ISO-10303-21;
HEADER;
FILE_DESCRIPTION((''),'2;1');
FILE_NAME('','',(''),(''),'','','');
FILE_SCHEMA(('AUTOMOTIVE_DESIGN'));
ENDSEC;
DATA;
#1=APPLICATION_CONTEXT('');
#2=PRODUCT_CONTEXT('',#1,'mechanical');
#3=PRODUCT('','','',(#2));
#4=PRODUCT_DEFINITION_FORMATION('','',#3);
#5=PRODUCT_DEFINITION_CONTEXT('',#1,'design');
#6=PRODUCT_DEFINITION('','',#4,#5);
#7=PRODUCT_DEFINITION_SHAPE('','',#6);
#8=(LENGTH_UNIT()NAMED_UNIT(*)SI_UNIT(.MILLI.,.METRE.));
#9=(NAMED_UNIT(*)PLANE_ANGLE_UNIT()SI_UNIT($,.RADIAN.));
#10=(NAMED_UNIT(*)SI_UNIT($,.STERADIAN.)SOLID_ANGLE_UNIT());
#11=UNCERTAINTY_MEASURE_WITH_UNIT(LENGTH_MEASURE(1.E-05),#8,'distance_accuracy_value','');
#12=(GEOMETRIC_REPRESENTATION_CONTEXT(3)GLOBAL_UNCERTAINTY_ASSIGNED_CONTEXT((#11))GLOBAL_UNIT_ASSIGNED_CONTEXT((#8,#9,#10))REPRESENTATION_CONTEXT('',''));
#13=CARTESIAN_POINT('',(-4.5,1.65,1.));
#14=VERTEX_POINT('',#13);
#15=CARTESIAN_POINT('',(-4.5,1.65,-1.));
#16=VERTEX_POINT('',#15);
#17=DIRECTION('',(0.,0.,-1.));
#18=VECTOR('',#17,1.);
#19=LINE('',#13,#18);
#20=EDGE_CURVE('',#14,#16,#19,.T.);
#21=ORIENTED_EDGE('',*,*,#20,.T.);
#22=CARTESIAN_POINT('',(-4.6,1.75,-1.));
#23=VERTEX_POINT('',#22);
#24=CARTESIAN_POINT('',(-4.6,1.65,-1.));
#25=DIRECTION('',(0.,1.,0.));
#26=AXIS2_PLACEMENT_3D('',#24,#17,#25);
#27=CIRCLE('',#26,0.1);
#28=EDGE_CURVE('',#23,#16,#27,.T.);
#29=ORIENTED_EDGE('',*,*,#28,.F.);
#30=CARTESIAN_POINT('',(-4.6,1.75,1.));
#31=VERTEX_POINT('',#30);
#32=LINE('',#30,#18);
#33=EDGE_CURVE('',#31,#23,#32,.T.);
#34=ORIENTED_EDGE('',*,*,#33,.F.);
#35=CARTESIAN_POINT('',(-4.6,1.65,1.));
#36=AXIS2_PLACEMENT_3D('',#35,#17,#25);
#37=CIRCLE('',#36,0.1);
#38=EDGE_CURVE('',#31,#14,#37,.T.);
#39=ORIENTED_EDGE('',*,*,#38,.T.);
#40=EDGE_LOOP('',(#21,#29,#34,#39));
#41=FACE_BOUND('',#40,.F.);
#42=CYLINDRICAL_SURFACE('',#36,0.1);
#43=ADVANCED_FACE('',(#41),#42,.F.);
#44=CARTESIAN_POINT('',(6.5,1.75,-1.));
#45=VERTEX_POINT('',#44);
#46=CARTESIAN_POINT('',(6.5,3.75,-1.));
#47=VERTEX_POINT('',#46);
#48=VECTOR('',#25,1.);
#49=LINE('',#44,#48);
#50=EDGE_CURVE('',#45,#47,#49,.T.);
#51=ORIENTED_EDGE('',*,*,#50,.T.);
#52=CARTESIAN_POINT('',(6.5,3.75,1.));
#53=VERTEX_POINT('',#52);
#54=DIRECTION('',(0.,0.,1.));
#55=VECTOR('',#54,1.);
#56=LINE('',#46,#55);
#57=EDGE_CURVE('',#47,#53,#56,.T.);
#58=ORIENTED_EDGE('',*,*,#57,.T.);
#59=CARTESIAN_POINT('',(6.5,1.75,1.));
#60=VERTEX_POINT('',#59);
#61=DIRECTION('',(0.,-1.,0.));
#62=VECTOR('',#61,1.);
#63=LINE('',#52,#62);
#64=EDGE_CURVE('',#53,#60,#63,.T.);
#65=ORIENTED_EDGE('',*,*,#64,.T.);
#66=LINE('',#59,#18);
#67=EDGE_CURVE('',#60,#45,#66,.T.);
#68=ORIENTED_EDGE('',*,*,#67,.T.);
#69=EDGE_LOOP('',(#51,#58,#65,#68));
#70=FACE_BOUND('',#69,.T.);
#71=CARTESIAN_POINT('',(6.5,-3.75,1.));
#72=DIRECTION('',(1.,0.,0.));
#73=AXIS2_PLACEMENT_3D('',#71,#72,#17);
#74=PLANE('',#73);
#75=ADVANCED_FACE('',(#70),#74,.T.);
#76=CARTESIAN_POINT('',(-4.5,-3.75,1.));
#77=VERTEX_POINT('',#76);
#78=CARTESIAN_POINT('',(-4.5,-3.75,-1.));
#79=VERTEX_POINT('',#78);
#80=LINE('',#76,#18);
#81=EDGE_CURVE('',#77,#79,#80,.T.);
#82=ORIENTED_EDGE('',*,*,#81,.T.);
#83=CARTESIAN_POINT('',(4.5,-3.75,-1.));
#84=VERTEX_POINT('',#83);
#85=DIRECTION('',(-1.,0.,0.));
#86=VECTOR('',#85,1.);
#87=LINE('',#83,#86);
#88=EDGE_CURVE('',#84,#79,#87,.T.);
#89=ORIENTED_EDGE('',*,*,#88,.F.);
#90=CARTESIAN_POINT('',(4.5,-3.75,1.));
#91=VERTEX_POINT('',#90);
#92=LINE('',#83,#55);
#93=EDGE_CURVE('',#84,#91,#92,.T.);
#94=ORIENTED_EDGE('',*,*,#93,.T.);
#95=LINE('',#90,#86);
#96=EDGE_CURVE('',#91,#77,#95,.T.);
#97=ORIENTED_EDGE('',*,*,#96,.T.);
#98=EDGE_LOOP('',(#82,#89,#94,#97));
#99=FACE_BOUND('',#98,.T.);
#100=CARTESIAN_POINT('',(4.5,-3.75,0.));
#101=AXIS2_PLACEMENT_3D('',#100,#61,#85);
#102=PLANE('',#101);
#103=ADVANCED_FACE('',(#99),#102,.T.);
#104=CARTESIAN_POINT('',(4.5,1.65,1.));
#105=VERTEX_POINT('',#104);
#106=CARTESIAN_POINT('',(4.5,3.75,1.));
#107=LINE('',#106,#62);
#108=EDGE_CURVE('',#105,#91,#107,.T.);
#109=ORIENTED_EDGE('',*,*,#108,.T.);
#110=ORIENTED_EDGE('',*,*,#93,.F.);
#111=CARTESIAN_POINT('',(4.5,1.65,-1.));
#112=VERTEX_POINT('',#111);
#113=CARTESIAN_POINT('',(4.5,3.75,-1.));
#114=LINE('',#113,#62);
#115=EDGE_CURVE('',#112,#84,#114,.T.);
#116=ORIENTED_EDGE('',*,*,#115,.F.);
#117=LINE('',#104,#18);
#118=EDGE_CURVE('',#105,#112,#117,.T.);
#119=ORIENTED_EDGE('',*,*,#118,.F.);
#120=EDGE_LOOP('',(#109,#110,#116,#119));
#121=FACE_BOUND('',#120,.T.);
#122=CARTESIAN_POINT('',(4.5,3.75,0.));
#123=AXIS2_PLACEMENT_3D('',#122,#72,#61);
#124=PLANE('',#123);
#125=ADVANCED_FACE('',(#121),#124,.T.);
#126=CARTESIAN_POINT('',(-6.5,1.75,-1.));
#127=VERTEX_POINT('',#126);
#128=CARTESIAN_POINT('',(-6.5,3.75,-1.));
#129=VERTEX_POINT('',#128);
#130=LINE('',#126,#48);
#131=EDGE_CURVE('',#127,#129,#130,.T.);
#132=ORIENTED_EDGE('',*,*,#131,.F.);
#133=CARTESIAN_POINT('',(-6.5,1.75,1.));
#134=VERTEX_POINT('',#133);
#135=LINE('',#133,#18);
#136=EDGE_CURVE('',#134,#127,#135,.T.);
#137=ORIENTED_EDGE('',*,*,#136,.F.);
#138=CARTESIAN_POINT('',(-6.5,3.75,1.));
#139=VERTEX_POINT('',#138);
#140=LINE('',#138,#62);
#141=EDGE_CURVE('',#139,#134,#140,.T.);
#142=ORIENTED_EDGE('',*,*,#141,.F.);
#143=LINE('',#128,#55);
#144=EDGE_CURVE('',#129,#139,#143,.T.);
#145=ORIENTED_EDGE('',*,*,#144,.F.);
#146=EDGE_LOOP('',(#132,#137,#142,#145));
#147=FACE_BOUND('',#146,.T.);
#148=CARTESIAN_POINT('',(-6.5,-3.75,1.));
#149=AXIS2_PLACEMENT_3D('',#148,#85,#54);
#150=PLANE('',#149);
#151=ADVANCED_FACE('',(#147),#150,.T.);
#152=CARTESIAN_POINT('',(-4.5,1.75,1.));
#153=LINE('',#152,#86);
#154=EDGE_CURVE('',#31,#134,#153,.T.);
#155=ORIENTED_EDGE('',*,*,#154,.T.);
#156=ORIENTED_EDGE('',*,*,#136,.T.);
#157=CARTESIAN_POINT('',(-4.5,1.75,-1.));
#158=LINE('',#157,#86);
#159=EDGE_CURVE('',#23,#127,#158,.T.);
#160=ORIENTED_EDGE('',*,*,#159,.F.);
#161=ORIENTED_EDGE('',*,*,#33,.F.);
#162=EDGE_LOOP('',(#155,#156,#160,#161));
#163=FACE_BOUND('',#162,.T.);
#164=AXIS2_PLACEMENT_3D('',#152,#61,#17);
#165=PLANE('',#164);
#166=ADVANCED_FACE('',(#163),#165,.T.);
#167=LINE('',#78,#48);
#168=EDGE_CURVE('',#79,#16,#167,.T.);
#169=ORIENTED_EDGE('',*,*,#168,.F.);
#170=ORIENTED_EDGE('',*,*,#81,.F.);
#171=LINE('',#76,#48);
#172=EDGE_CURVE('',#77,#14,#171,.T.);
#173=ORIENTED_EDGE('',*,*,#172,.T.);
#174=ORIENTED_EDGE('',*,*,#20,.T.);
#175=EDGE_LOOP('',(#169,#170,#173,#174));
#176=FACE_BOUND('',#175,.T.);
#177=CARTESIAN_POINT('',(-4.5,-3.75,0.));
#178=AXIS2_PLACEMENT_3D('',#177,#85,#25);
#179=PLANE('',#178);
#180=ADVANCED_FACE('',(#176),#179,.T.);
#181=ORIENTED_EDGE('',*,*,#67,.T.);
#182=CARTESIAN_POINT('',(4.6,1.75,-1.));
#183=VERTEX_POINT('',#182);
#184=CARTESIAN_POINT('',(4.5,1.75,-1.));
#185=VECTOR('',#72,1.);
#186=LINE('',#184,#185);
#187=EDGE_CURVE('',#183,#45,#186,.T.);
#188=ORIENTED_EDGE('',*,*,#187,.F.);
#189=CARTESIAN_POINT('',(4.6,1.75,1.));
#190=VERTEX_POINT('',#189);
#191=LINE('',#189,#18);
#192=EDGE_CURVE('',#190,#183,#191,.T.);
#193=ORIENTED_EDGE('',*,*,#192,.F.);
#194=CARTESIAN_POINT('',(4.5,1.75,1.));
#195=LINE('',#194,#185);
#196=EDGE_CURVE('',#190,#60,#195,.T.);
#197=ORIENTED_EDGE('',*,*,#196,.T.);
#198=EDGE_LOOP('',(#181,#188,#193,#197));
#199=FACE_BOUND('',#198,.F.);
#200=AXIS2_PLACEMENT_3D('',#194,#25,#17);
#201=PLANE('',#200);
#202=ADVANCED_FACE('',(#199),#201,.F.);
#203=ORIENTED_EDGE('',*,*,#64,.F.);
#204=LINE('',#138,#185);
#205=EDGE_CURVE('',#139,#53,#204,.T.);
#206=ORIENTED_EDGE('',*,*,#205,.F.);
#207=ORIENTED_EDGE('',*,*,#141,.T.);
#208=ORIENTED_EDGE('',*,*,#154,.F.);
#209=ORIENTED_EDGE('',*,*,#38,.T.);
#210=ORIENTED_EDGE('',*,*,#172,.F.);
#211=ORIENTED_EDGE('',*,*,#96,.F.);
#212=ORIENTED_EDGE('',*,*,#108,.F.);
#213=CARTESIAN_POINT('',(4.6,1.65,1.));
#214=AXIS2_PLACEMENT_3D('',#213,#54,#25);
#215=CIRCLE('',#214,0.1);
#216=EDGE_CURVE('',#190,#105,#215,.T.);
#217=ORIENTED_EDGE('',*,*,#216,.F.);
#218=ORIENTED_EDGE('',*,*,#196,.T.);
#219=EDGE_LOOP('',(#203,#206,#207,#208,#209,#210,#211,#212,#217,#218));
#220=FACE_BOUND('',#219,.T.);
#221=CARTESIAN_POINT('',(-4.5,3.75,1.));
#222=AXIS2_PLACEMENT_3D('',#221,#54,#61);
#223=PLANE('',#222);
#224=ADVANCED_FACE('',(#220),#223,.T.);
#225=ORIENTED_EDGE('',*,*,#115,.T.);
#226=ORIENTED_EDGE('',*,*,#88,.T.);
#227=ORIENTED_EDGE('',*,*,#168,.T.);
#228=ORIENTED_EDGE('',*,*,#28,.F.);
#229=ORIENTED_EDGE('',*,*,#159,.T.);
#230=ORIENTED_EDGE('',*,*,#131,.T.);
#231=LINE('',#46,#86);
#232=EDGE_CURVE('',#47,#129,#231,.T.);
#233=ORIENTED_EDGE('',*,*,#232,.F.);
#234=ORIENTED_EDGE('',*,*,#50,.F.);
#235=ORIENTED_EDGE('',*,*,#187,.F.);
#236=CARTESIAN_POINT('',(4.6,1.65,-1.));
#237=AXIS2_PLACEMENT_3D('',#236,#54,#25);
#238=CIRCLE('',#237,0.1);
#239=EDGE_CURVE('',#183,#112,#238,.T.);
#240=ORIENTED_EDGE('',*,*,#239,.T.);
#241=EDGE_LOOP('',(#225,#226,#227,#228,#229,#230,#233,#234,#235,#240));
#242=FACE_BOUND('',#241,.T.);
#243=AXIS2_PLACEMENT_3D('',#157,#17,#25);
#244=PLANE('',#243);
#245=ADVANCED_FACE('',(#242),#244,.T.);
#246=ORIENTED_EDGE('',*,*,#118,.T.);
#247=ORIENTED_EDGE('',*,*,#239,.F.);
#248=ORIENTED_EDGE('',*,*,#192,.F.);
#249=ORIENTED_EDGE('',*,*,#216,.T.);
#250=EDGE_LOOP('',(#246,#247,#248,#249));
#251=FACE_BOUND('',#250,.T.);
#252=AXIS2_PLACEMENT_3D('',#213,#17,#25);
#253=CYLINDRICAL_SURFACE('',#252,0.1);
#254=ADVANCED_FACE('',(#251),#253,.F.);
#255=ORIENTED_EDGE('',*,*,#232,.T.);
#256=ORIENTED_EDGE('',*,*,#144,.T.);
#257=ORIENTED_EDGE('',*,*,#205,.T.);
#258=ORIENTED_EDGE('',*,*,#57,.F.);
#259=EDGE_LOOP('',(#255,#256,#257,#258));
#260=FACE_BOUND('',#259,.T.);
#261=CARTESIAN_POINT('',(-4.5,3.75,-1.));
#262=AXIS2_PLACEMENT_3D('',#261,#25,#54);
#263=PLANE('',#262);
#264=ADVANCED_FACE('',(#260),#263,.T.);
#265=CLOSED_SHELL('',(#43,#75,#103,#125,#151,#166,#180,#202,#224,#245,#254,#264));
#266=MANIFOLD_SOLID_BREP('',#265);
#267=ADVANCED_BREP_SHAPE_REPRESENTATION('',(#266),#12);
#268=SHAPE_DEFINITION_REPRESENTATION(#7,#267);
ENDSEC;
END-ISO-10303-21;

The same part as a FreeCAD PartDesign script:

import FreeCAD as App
import Part
import Sketcher

V = App.Vector


def edges_at(feature, points):
    """Names of the edges that pass closest to the given points."""
    edges = feature.Shape.Edges
    near = lambda p: min(range(len(edges)), key=lambda i: edges[i].distToShape(Part.Vertex(*p))[0])
    return sorted({f"Edge{near(p) + 1}" for p in points})


def add_polygon(sketch, points):
    """Adds a closed chain of lines whose ends are joined by coincident constraints."""
    first, n = sketch.GeometryCount, len(points)
    for a, b in zip(points, points[1:] + points[:1]):
        sketch.addGeometry(Part.LineSegment(App.Vector(*a, 0), App.Vector(*b, 0)), False)
    for i in range(n):
        sketch.addConstraint(Sketcher.Constraint("Coincident", first + i, 2, first + (i + 1) % n, 1))

doc = App.newDocument("Part")
params = doc.addObject("Spreadsheet::Sheet", "Params")
for row, (alias, value) in enumerate([
    ("sketch1_width", "9 mm"),
    ("sketch1_height", "7.5 mm"),
    ("pad1_length", "2 mm"),
    ("sketch2_width", "2 mm"),
    ("pad2_length", "2 mm"),
    ("sketch3_width", "2 mm"),
    ("pad3_length", "2 mm"),
    ("fillet_radius", "0.1 mm"),
], start=1):
    params.set(f"A{row}", alias)
    params.set(f"B{row}", "=" + value)
    params.setAlias(f"B{row}", alias)

body = doc.addObject("PartDesign::Body", "Body")

# Sketch on XY plane
sketch1 = body.newObject("Sketcher::SketchObject", "Sketch")
sketch1.AttachmentSupport = (doc.getObject("XY_Plane"), [""])
sketch1.MapMode = "FlatFace"
add_polygon(sketch1, [(-4, -4), (4, -4), (4, 4), (-4, 4)])  # lines 0-3
sketch1.addConstraint([
    Sketcher.Constraint("Horizontal", 0),
    Sketcher.Constraint("Vertical", 1),
    Sketcher.Constraint("Horizontal", 2),
    Sketcher.Constraint("Vertical", 3),
    Sketcher.Constraint("Symmetric", 0, 2, 2, 2, -1, 1),
    Sketcher.Constraint("DistanceX", 0, 1, 0, 2, 9.0),
    Sketcher.Constraint("DistanceY", 1, 1, 1, 2, 7.5),
])
sketch1.setExpression("Constraints[9]", "Params.sketch1_width")
sketch1.setExpression("Constraints[10]", "Params.sketch1_height")
pad1 = body.newObject("PartDesign::Pad", "Pad")
pad1.Profile = sketch1
pad1.setExpression("Length", "Params.pad1_length")
pad1.Midplane = True

# Sketch on YZ plane
sketch2 = body.newObject("Sketcher::SketchObject", "Sketch001")
sketch2.AttachmentSupport = (doc.getObject("YZ_Plane"), [""])
sketch2.MapMode = "FlatFace"
sketch2.AttachmentOffset = App.Placement(V(0, 0, 4.5), App.Rotation())
add_polygon(sketch2, [(1.8, -1), (3.8, -1), (3.8, 1), (1.8, 1)])  # lines 0-3
sketch2.addConstraint([
    Sketcher.Constraint("Horizontal", 0),
    Sketcher.Constraint("Vertical", 1),
    Sketcher.Constraint("Horizontal", 2),
    Sketcher.Constraint("Vertical", 3),
    Sketcher.Constraint("Equal", 2, 1),
    Sketcher.Constraint("DistanceX", 0, 1, 0, 2, 2.0),
    Sketcher.Constraint("DistanceY", 0, 2, -1, 1, 1.0),
    Sketcher.Constraint("DistanceX", -1, 1, 0, 2, 3.75),
])
sketch2.setExpression("Constraints[9]", "Params.sketch2_width")
pad2 = body.newObject("PartDesign::Pad", "Pad001")
pad2.Profile = sketch2
pad2.setExpression("Length", "Params.pad2_length")

# Sketch on YZ plane
sketch3 = body.newObject("Sketcher::SketchObject", "Sketch002")
sketch3.AttachmentSupport = (doc.getObject("YZ_Plane"), [""])
sketch3.MapMode = "FlatFace"
sketch3.AttachmentOffset = App.Placement(V(0, 0, -4.5), App.Rotation())
add_polygon(sketch3, [(3.8, 1), (3.8, -1), (1.8, -1), (1.8, 1)])  # lines 0-3
sketch3.addConstraint([
    Sketcher.Constraint("Vertical", 0),
    Sketcher.Constraint("Horizontal", 1),
    Sketcher.Constraint("Vertical", 2),
    Sketcher.Constraint("Horizontal", 3),
    Sketcher.Constraint("Equal", 3, 0),
    Sketcher.Constraint("DistanceX", 1, 2, 1, 1, 2.0),
    Sketcher.Constraint("DistanceY", 0, 2, -1, 1, 1.0),
    Sketcher.Constraint("DistanceX", -1, 1, 0, 2, 3.75),
])
sketch3.setExpression("Constraints[9]", "Params.sketch3_width")
pad3 = body.newObject("PartDesign::Pad", "Pad002")
pad3.Profile = sketch3
pad3.setExpression("Length", "Params.pad3_length")
pad3.Reversed = True
doc.recompute()

fillet = body.newObject("PartDesign::Fillet", "Fillet")
fillet.Base = (pad3, edges_at(pad3, [(4.5, 1.75, 0), (-4.5, 1.75, 0)]))
fillet.setExpression("Radius", "Params.fillet_radius")

doc.recompute()
